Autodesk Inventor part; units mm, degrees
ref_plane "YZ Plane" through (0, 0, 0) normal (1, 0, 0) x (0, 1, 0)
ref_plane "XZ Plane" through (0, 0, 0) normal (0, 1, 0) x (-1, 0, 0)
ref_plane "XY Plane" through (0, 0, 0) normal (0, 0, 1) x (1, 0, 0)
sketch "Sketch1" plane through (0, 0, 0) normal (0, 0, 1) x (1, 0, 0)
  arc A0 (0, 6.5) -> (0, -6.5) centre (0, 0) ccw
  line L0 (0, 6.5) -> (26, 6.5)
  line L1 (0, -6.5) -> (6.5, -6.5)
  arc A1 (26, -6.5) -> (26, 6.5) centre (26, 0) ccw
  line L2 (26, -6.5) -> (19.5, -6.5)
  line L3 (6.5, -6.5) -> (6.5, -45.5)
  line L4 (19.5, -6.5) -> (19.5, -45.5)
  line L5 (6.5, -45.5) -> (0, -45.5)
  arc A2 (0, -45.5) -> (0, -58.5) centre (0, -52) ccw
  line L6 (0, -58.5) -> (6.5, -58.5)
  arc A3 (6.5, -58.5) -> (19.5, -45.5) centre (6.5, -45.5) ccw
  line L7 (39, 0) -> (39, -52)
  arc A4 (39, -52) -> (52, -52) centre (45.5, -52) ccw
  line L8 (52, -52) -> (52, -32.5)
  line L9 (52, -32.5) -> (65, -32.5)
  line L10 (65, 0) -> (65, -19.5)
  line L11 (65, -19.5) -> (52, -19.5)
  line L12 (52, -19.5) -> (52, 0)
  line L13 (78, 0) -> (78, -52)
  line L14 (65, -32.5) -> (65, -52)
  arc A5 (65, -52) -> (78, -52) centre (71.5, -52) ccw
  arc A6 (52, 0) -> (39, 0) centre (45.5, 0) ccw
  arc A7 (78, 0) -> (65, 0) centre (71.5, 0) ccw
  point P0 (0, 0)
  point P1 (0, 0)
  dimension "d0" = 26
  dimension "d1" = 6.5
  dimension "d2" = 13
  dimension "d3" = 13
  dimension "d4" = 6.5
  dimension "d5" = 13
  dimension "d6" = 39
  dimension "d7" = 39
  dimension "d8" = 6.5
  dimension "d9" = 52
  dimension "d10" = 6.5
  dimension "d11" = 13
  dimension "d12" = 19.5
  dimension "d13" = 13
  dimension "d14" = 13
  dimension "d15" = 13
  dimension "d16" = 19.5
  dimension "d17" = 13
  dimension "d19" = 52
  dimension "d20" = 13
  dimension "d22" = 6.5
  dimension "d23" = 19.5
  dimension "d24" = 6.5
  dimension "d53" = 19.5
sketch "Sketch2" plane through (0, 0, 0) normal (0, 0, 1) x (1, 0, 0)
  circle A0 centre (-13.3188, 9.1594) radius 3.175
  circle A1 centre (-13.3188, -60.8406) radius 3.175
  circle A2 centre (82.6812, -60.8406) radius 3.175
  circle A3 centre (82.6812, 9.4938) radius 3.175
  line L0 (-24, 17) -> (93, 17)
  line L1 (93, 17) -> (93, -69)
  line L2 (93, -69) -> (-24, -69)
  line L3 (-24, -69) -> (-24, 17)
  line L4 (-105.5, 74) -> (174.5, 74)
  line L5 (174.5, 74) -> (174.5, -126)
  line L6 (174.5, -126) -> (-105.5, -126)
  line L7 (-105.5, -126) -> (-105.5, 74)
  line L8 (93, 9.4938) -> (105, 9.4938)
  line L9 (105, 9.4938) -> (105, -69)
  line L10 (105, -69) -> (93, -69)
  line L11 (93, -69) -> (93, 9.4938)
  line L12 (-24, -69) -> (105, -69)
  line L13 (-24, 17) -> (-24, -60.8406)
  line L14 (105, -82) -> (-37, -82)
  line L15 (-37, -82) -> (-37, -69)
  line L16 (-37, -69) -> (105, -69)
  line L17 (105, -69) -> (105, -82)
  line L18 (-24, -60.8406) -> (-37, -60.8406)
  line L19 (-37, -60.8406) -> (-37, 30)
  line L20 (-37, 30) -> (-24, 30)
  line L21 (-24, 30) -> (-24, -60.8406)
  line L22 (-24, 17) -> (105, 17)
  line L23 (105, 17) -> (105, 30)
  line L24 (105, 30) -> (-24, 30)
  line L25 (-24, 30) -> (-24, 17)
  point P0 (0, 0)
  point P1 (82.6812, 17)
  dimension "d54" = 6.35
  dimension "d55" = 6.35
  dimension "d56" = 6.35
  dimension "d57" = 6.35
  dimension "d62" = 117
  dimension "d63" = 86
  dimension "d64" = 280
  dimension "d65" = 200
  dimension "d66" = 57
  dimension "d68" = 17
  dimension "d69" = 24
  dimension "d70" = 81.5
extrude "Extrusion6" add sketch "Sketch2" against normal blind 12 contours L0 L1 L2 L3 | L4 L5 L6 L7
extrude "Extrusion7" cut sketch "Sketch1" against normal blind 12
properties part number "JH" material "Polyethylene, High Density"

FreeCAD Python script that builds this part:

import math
import FreeCAD as App
import Part
import Sketcher


def add_polygon(sketch, points):
    """Adds a closed chain of lines whose ends are joined by coincident constraints."""
    first, n = sketch.GeometryCount, len(points)
    for a, b in zip(points, points[1:] + points[:1]):
        sketch.addGeometry(Part.LineSegment(App.Vector(*a, 0), App.Vector(*b, 0)), False)
    for i in range(n):
        sketch.addConstraint(Sketcher.Constraint("Coincident", first + i, 2, first + (i + 1) % n, 1))

doc = App.newDocument("Part")
body = doc.addObject("PartDesign::Body", "Body")

# Sketch on XY plane
sketch1 = doc.addObject("Sketcher::SketchObject", "Sketch")
body.addObject(sketch1)
sketch1.AttachmentSupport = (doc.XY_Plane, [""])
sketch1.MapMode = "FlatFace"
add_polygon(sketch1, [(174.5, 74), (-105.5, 74), (-105.5, -126), (174.5, -126)])  # lines 0-3
add_polygon(sketch1, [(-24, 17), (-24, -60.8), (-37, -60.8), (-37, 30), (105, 30), (105, 17)])  # lines 4-9
add_polygon(sketch1, [(93, -69), (93, 9.5), (105, 9.5), (105, -82), (-37, -82), (-37, -69)])  # lines 10-15
sketch1.addGeometry(Part.Circle(App.Vector(-13.3, -60.8, 0), App.Vector(0, 0, 1), 3.2), False)  # 16
sketch1.addGeometry(Part.Circle(App.Vector(82.7, -60.8, 0), App.Vector(0, 0, 1), 3.2), False)  # 17
sketch1.addGeometry(Part.Circle(App.Vector(-13.3, 9.2, 0), App.Vector(0, 0, 1), 3.2), False)  # 18
sketch1.addGeometry(Part.Circle(App.Vector(82.7, 9.5, 0), App.Vector(0, 0, 1), 3.2), False)  # 19
sketch1.addConstraint([
    Sketcher.Constraint("Horizontal", 0),
    Sketcher.Constraint("Vertical", 1),
    Sketcher.Constraint("Horizontal", 2),
    Sketcher.Constraint("Vertical", 3),
    Sketcher.Constraint("Vertical", 4),
    Sketcher.Constraint("Horizontal", 5),
    Sketcher.Constraint("Vertical", 6),
    Sketcher.Constraint("Horizontal", 7),
    Sketcher.Constraint("Vertical", 8),
    Sketcher.Constraint("Horizontal", 9),
    Sketcher.Constraint("Vertical", 10),
    Sketcher.Constraint("Horizontal", 11),
    Sketcher.Constraint("Vertical", 12),
    Sketcher.Constraint("Horizontal", 13),
    Sketcher.Constraint("Vertical", 14),
    Sketcher.Constraint("Horizontal", 15),
    Sketcher.Constraint("Equal", 16, 17),
    Sketcher.Constraint("Equal", 17, 18),
    Sketcher.Constraint("Equal", 18, 19),
    Sketcher.Constraint("Horizontal", 16, 3, 17, 3),
    Sketcher.Constraint("Horizontal", 17, 3, 4, 2),
    Sketcher.Constraint("Horizontal", 19, 3, 10, 2),
    Sketcher.Constraint("Vertical", 16, 3, 18, 3),
    Sketcher.Constraint("Vertical", 17, 3, 19, 3),
    Sketcher.Constraint("Vertical", 8, 2, 11, 2),
    Sketcher.Constraint("Vertical", 6, 2, 13, 2),
    Sketcher.Constraint("Equal", 5, 8),
    Sketcher.Constraint("Equal", 8, 14),
    Sketcher.Constraint("Diameter", 16, 6.35),
    Sketcher.Constraint("DistanceX", 0, 2, 0, 1, 280.0),
    Sketcher.Constraint("DistanceY", 1, 2, 1, 1, 200.0),
    Sketcher.Constraint("DistanceX", 4, 2, -1, 1, 24.0),
    Sketcher.Constraint("DistanceY", -1, 1, 8, 2, 17.0),
    Sketcher.Constraint("DistanceY", 8, 2, 3, 2, 57.0),
    Sketcher.Constraint("DistanceX", 1, 2, 4, 2, 81.5),
    Sketcher.Constraint("DistanceX", 10, 2, 3, 2, 81.5),
    Sketcher.Constraint("DistanceX", 5, 2, 5, 1, 13.0),
    Sketcher.Constraint("DistanceX", 7, 1, 7, 2, 142.0),
    Sketcher.Constraint("DistanceY", 12, 2, -1, 1, 82.0),
    Sketcher.Constraint("DistanceX", 16, 3, 17, 3, 96.0),
    Sketcher.Constraint("DistanceY", 16, 3, 18, 3, 70.0),
    Sketcher.Constraint("DistanceY", 4, 2, 4, 1, 77.8406),
    Sketcher.Constraint("DistanceY", 10, 1, 10, 2, 78.4938),
    Sketcher.Constraint("DistanceX", 16, 3, -1, 1, 13.3188),
])
pad1 = doc.addObject("PartDesign::Pad", "Pad")
body.addObject(pad1)
pad1.Profile = sketch1
pad1.Length = 12
pad1.Reversed = True

# Sketch on XY plane
sketch2 = doc.addObject("Sketcher::SketchObject", "Sketch001")
body.addObject(sketch2)
sketch2.AttachmentSupport = (doc.XY_Plane, [""])
sketch2.MapMode = "FlatFace"
sketch2.addGeometry([
    Part.LineSegment(App.Vector(26, 6, 0), App.Vector(0, 6, 0)),  # 0
    Part.ArcOfCircle(Part.Circle(App.Vector(0, 0, 0), App.Vector(0, 0, 1), 6), math.radians(90), math.radians(270)),  # 1
    Part.LineSegment(App.Vector(0, -6, 0), App.Vector(6, -6, 0)),  # 2
    Part.LineSegment(App.Vector(6, -6, 0), App.Vector(6, -46, 0)),  # 3
    Part.LineSegment(App.Vector(6, -46, 0), App.Vector(0, -46, 0)),  # 4
    Part.ArcOfCircle(Part.Circle(App.Vector(0, -52, 0), App.Vector(0, 0, 1), 6), math.radians(90), math.radians(270)),  # 5
    Part.LineSegment(App.Vector(0, -58, 0), App.Vector(6, -58, 0)),  # 6
    Part.ArcOfCircle(Part.Circle(App.Vector(6, -46, 0), App.Vector(0, 0, 1), 13), math.radians(-90), math.radians(0)),  # 7
    Part.LineSegment(App.Vector(20, -46, 0), App.Vector(20, -6, 0)),  # 8
    Part.LineSegment(App.Vector(20, -6, 0), App.Vector(26, -6, 0)),  # 9
    Part.ArcOfCircle(Part.Circle(App.Vector(26, 0, 0), App.Vector(0, 0, 1), 6), math.radians(-90), math.radians(90)),  # 10
    Part.ArcOfCircle(Part.Circle(App.Vector(46, 0, 0), App.Vector(0, 0, 1), 6), math.radians(0), math.radians(180)),  # 11
    Part.LineSegment(App.Vector(39, 0, 0), App.Vector(39, -52, 0)),  # 12
    Part.ArcOfCircle(Part.Circle(App.Vector(46, -52, 0), App.Vector(0, 0, 1), 6), math.radians(180), math.radians(360)),  # 13
    Part.LineSegment(App.Vector(52, -52, 0), App.Vector(52, -32, 0)),  # 14
    Part.LineSegment(App.Vector(52, -32, 0), App.Vector(65, -32, 0)),  # 15
    Part.LineSegment(App.Vector(65, -32, 0), App.Vector(65, -52, 0)),  # 16
    Part.ArcOfCircle(Part.Circle(App.Vector(72, -52, 0), App.Vector(0, 0, 1), 6), math.radians(180), math.radians(360)),  # 17
    Part.LineSegment(App.Vector(78, -52, 0), App.Vector(78, 0, 0)),  # 18
    Part.ArcOfCircle(Part.Circle(App.Vector(72, 0, 0), App.Vector(0, 0, 1), 6), math.radians(0), math.radians(180)),  # 19
    Part.LineSegment(App.Vector(65, 0, 0), App.Vector(65, -20, 0)),  # 20
    Part.LineSegment(App.Vector(65, -20, 0), App.Vector(52, -20, 0)),  # 21
    Part.LineSegment(App.Vector(52, -20, 0), App.Vector(52, 0, 0)),  # 22
], False)
sketch2.addConstraint([
    Sketcher.Constraint("Tangent", 0, 2, 1, 1),
    Sketcher.Constraint("Tangent", 1, 2, 2, 1),
    Sketcher.Constraint("Coincident", 2, 2, 3, 1),
    Sketcher.Constraint("Coincident", 3, 2, 4, 1),
    Sketcher.Constraint("Tangent", 4, 2, 5, 1),
    Sketcher.Constraint("Tangent", 5, 2, 6, 1),
    Sketcher.Constraint("Tangent", 6, 2, 7, 1),
    Sketcher.Constraint("Tangent", 7, 2, 8, 1),
    Sketcher.Constraint("Coincident", 8, 2, 9, 1),
    Sketcher.Constraint("Tangent", 9, 2, 10, 1),
    Sketcher.Constraint("Tangent", 10, 2, 0, 1),
    Sketcher.Constraint("Tangent", 11, 2, 12, 1),
    Sketcher.Constraint("Tangent", 12, 2, 13, 1),
    Sketcher.Constraint("Tangent", 13, 2, 14, 1),
    Sketcher.Constraint("Coincident", 14, 2, 15, 1),
    Sketcher.Constraint("Coincident", 15, 2, 16, 1),
    Sketcher.Constraint("Tangent", 16, 2, 17, 1),
    Sketcher.Constraint("Tangent", 17, 2, 18, 1),
    Sketcher.Constraint("Tangent", 18, 2, 19, 1),
    Sketcher.Constraint("Tangent", 19, 2, 20, 1),
    Sketcher.Constraint("Coincident", 20, 2, 21, 1),
    Sketcher.Constraint("Coincident", 21, 2, 22, 1),
    Sketcher.Constraint("Tangent", 22, 2, 11, 1),
    Sketcher.Constraint("Horizontal", 0),
    Sketcher.Constraint("Horizontal", 2),
    Sketcher.Constraint("Vertical", 3),
    Sketcher.Constraint("Horizontal", 4),
    Sketcher.Constraint("Horizontal", 6),
    Sketcher.Constraint("Vertical", 8),
    Sketcher.Constraint("Horizontal", 9),
    Sketcher.Constraint("Vertical", 12),
    Sketcher.Constraint("Vertical", 14),
    Sketcher.Constraint("Horizontal", 15),
    Sketcher.Constraint("Vertical", 16),
    Sketcher.Constraint("Vertical", 18),
    Sketcher.Constraint("Vertical", 20),
    Sketcher.Constraint("Horizontal", 21),
    Sketcher.Constraint("Vertical", 22),
    Sketcher.Constraint("Coincident", 1, 3, -1, 1),
    Sketcher.Constraint("Coincident", 3, 2, 7, 3),
    Sketcher.Constraint("Equal", 1, 5),
    Sketcher.Constraint("Equal", 5, 10),
    Sketcher.Constraint("Equal", 10, 11),
    Sketcher.Constraint("Equal", 11, 13),
    Sketcher.Constraint("Equal", 13, 17),
    Sketcher.Constraint("Equal", 17, 19),
    Sketcher.Constraint("PointOnObject", 5, 3, -2),
    Sketcher.Constraint("PointOnObject", 11, 3, -1),
    Sketcher.Constraint("PointOnObject", 19, 3, -1),
    Sketcher.Constraint("Horizontal", 5, 3, 13, 3),
    Sketcher.Constraint("Horizontal", 13, 3, 17, 3),
    Sketcher.Constraint("Equal", 6, 9),
    Sketcher.Constraint("Equal", 16, 20),
    Sketcher.Constraint("Radius", 7, 13.0),
    Sketcher.Constraint("DistanceX", 0, 2, 0, 1, 26.0),
    Sketcher.Constraint("DistanceX", 15, 1, 15, 2, 13.0),
    Sketcher.Constraint("DistanceY", 3, 2, 3, 1, 39.0),
    Sketcher.Constraint("DistanceY", 14, 1, 14, 2, 19.5),
    Sketcher.Constraint("DistanceX", -1, 1, 11, 2, 39.0),
])
pocket1 = doc.addObject("PartDesign::Pocket", "Pocket")
body.addObject(pocket1)
pocket1.Profile = sketch2
pocket1.Length = 12

doc.recompute()
